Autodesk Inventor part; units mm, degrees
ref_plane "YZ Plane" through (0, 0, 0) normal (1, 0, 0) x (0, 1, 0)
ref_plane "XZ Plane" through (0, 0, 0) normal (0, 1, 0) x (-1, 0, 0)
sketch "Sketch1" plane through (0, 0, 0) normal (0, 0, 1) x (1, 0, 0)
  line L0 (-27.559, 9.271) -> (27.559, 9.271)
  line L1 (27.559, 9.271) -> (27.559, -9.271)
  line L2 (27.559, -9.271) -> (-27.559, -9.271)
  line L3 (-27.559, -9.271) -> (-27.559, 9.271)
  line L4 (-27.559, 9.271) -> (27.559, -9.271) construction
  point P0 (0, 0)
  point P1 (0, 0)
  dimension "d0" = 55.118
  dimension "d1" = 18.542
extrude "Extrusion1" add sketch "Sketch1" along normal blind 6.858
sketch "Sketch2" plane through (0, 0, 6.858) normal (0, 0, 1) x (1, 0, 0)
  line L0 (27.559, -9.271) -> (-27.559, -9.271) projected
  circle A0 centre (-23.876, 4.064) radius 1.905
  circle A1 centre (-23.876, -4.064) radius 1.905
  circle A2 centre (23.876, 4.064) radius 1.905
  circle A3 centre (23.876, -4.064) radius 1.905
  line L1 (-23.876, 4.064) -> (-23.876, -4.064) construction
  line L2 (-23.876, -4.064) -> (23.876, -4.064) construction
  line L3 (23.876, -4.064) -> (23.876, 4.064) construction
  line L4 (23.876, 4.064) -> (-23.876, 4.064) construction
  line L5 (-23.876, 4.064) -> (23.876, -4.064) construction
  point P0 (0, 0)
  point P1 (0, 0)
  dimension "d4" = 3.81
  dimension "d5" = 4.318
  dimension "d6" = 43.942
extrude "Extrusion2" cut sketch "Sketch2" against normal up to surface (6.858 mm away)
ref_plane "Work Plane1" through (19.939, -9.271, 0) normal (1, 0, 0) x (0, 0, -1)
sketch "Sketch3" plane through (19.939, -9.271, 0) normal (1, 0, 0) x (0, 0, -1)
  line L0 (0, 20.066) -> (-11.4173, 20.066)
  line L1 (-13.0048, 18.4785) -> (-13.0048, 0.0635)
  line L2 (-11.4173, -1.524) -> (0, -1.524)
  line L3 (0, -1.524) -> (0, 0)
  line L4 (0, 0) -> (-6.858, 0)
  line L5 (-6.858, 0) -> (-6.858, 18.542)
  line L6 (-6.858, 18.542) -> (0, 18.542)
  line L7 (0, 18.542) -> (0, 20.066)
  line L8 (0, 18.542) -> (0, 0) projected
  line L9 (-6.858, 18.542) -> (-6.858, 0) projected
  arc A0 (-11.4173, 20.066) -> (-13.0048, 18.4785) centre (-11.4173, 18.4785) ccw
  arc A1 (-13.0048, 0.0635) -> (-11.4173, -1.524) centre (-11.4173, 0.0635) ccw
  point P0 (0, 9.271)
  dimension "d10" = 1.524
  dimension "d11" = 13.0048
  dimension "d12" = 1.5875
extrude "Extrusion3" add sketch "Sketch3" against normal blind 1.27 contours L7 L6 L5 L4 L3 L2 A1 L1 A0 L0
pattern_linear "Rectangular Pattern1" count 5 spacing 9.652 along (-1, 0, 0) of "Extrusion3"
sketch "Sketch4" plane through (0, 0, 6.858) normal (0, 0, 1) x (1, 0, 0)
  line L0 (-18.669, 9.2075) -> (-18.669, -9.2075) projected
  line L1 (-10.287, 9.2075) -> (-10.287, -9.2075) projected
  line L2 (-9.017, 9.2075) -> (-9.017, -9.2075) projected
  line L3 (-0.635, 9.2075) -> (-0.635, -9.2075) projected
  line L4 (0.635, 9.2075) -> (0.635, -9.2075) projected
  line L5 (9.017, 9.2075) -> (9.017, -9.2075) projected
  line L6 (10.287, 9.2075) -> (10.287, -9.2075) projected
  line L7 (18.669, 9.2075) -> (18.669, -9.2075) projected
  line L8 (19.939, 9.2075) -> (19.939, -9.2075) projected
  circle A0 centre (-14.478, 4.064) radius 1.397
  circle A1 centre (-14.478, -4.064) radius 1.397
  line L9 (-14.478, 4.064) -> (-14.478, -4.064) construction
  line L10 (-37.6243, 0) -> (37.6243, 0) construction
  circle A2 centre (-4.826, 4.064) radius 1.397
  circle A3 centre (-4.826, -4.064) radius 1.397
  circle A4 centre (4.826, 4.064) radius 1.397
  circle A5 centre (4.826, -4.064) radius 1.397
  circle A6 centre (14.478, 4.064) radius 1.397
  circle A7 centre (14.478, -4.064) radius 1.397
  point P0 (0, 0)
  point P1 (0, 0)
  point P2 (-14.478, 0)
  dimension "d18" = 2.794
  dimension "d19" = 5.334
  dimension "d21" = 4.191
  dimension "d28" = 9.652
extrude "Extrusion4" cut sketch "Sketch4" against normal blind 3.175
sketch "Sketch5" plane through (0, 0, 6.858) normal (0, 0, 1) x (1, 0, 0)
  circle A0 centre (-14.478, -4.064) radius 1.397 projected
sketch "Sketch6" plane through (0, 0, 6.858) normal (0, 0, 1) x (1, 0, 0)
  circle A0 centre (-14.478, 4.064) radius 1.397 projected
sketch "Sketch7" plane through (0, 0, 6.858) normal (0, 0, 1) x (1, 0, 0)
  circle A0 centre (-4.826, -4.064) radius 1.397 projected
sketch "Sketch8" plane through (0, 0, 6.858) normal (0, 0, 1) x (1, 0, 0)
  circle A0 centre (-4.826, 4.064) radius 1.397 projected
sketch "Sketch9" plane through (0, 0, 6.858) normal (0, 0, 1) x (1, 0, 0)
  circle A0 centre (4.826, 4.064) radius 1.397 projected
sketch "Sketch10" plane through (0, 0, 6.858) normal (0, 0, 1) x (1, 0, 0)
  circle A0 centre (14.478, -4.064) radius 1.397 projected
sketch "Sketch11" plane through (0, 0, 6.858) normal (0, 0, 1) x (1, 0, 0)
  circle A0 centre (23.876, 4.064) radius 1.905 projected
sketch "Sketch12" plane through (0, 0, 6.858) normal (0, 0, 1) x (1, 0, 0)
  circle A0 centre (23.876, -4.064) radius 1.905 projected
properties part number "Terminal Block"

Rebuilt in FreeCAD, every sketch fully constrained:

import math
import FreeCAD as App
import Part
import Sketcher
from FreeCAD import Vector
Q = App.Units.Quantity

doc = App.newDocument("Part")
body = doc.addObject("PartDesign::Body", "Body")

# Sketch on XY plane
sketch1 = body.newObject("Sketcher::SketchObject", "Sketch")
sketch1.AttachmentSupport = (doc.getObject("XY_Plane"), [""])
sketch1.MapMode = "FlatFace"
sketch1.addGeometry([
    Part.LineSegment(Vector(28, 9, 0), Vector(-28, 9, 0)),
    Part.LineSegment(Vector(-28, 9, 0), Vector(-28, -9, 0)),
    Part.LineSegment(Vector(-28, -9, 0), Vector(28, -9, 0)),
    Part.LineSegment(Vector(28, -9, 0), Vector(28, 9, 0)),
], False)
sketch1.addConstraint([
    Sketcher.Constraint("Coincident", 0, 2, 1, 1),
    Sketcher.Constraint("Coincident", 1, 2, 2, 1),
    Sketcher.Constraint("Coincident", 2, 2, 3, 1),
    Sketcher.Constraint("Coincident", 3, 2, 0, 1),
    Sketcher.Constraint("Horizontal", 0),
    Sketcher.Constraint("Vertical", 1),
    Sketcher.Constraint("Horizontal", 2),
    Sketcher.Constraint("Vertical", 3),
    Sketcher.Constraint("Symmetric", 0, 2, 2, 2, -1, 1),
    Sketcher.Constraint("DistanceX", 0, 2, 0, 1, Q("2.17 in")),
    Sketcher.Constraint("DistanceY", 1, 2, 1, 1, Q("0.73 in")),
])
pad1 = body.newObject("PartDesign::Pad", "Pad")
pad1.Profile = sketch1
pad1.Length = Q("0.27 in")

# Sketch on XY plane
sketch2 = body.newObject("Sketcher::SketchObject", "Sketch001")
sketch2.AttachmentSupport = (doc.getObject("XY_Plane"), [""])
sketch2.MapMode = "FlatFace"
sketch2.AttachmentOffset = App.Placement(Vector(0, 0, 0.27 * 25.4), App.Rotation())
sketch2.addGeometry([
    Part.Circle(Vector(-23.9, 4.1, 0), Vector(0, 0, 1), 1.9),
    Part.Circle(Vector(-23.9, -4.1, 0), Vector(0, 0, 1), 1.9),
    Part.Circle(Vector(23.9, 4.1, 0), Vector(0, 0, 1), 1.9),
    Part.Circle(Vector(23.9, -4.1, 0), Vector(0, 0, 1), 1.9),
], False)
sketch2.addConstraint([
    Sketcher.Constraint("Equal", 0, 1),
    Sketcher.Constraint("Equal", 1, 2),
    Sketcher.Constraint("Equal", 2, 3),
    Sketcher.Constraint("Symmetric", 1, 3, 2, 3, -1, 1),
    Sketcher.Constraint("Symmetric", 0, 3, 3, 3, -1, 1),
    Sketcher.Constraint("Symmetric", 0, 3, 2, 3, -2),
    Sketcher.Constraint("Diameter", 0, Q("0.15 in")),
    Sketcher.Constraint("DistanceX", 0, 3, -1, 1, Q("0.94 in")),
    Sketcher.Constraint("DistanceY", -1, 1, 0, 3, Q("0.16 in")),
])
pocket1 = body.newObject("PartDesign::Pocket", "Pocket")
pocket1.Profile = sketch2
pocket1.Length = Q("0.27 in")

# Sketch on YZ plane
sketch3 = body.newObject("Sketcher::SketchObject", "Sketch002")
sketch3.AttachmentSupport = (doc.getObject("YZ_Plane"), [""])
sketch3.MapMode = "FlatFace"
sketch3.AttachmentOffset = App.Placement(Vector(0, 0, 0.785 * 25.4), App.Rotation())
sketch3.addGeometry([
    Part.LineSegment(Vector(9.3, 0, 0), Vector(10.8, 0, 0)),  # 0
    Part.LineSegment(Vector(10.8, 0, 0), Vector(10.8, 11.4, 0)),  # 1
    Part.ArcOfCircle(Part.Circle(Vector(9.2, 11.4, 0), Vector(0, 0, 1), 1.6), math.radians(0), math.radians(90)),  # 2
    Part.LineSegment(Vector(9.2, 13, 0), Vector(-9.2, 13, 0)),  # 3
    Part.ArcOfCircle(Part.Circle(Vector(-9.2, 11.4, 0), Vector(0, 0, 1), 1.6), math.radians(90), math.radians(180)),  # 4
    Part.LineSegment(Vector(-10.8, 11.4, 0), Vector(-10.8, 0, 0)),  # 5
    Part.LineSegment(Vector(-10.8, 0, 0), Vector(-9.3, 0, 0)),  # 6
    Part.LineSegment(Vector(-9.3, 0, 0), Vector(-9.3, 6.9, 0)),  # 7
    Part.LineSegment(Vector(-9.3, 6.9, 0), Vector(9.3, 6.9, 0)),  # 8
    Part.LineSegment(Vector(9.3, 6.9, 0), Vector(9.3, 0, 0)),  # 9
], False)
sketch3.addConstraint([
    Sketcher.Constraint("Coincident", 0, 2, 1, 1),
    Sketcher.Constraint("Tangent", 1, 2, 2, 1),
    Sketcher.Constraint("Tangent", 2, 2, 3, 1),
    Sketcher.Constraint("Tangent", 3, 2, 4, 1),
    Sketcher.Constraint("Tangent", 4, 2, 5, 1),
    Sketcher.Constraint("Coincident", 5, 2, 6, 1),
    Sketcher.Constraint("Coincident", 6, 2, 7, 1),
    Sketcher.Constraint("Coincident", 7, 2, 8, 1),
    Sketcher.Constraint("Coincident", 8, 2, 9, 1),
    Sketcher.Constraint("Coincident", 9, 2, 0, 1),
    Sketcher.Constraint("Horizontal", 0),
    Sketcher.Constraint("Vertical", 1),
    Sketcher.Constraint("Horizontal", 3),
    Sketcher.Constraint("Vertical", 5),
    Sketcher.Constraint("Horizontal", 6),
    Sketcher.Constraint("Vertical", 7),
    Sketcher.Constraint("Horizontal", 8),
    Sketcher.Constraint("Vertical", 9),
    Sketcher.Constraint("Equal", 2, 4),
    Sketcher.Constraint("Symmetric", 0, 2, 5, 2, -1, 1),
    Sketcher.Constraint("Symmetric", 6, 2, 9, 2, -2),
    Sketcher.Constraint("Radius", 2, Q("0.0625 in")),
    Sketcher.Constraint("DistanceX", 0, 1, 0, 2, Q("0.06 in")),
    Sketcher.Constraint("DistanceY", -1, 1, 2, 2, Q("0.512 in")),
    Sketcher.Constraint("DistanceX", 8, 1, 8, 2, Q("0.73 in")),
    Sketcher.Constraint("DistanceY", 7, 1, 7, 2, Q("0.27 in")),
])
pad2 = body.newObject("PartDesign::Pad", "Pad001")
pad2.Profile = sketch3
pad2.Length = Q("0.05 in")
pad2.Reversed = True
doc.recompute()

linearpattern = body.newObject("PartDesign::LinearPattern", "LinearPattern")
linearpattern.Originals = [pad2]
linearpattern.Direction = (doc.getObject("X_Axis"), [""])
linearpattern.Mode = "offset"
linearpattern.Offset = Q("0.38 in")
linearpattern.Occurrences = 5
linearpattern.Reversed = True
body.Tip = linearpattern

# Sketch on XY plane
sketch4 = body.newObject("Sketcher::SketchObject", "Sketch003")
sketch4.AttachmentSupport = (doc.getObject("XY_Plane"), [""])
sketch4.MapMode = "FlatFace"
sketch4.AttachmentOffset = App.Placement(Vector(0, 0, 0.27 * 25.4), App.Rotation())
sketch4.addGeometry([
    Part.Circle(Vector(-14.5, 4.1, 0), Vector(0, 0, 1), 1.4),  # 0
    Part.Circle(Vector(-14.5, -4.1, 0), Vector(0, 0, 1), 1.4),  # 1
    Part.Circle(Vector(-4.8, 4.1, 0), Vector(0, 0, 1), 1.4),  # 2
    Part.Circle(Vector(-4.8, -4.1, 0), Vector(0, 0, 1), 1.4),  # 3
    Part.Circle(Vector(4.8, 4.1, 0), Vector(0, 0, 1), 1.4),  # 4
    Part.Circle(Vector(4.8, -4.1, 0), Vector(0, 0, 1), 1.4),  # 5
    Part.Circle(Vector(14.5, 4.1, 0), Vector(0, 0, 1), 1.4),  # 6
    Part.Circle(Vector(14.5, -4.1, 0), Vector(0, 0, 1), 1.4),  # 7
], False)
sketch4.addConstraint([
    Sketcher.Constraint("Equal", 0, 1),
    Sketcher.Constraint("Equal", 1, 2),
    Sketcher.Constraint("Equal", 2, 3),
    Sketcher.Constraint("Equal", 3, 4),
    Sketcher.Constraint("Equal", 4, 5),
    Sketcher.Constraint("Equal", 5, 6),
    Sketcher.Constraint("Equal", 6, 7),
    Sketcher.Constraint("Symmetric", 3, 3, 4, 3, -1, 1),
    Sketcher.Constraint("Symmetric", 2, 3, 5, 3, -1, 1),
    Sketcher.Constraint("Symmetric", 1, 3, 6, 3, -1, 1),
    Sketcher.Constraint("Symmetric", 0, 3, 7, 3, -1, 1),
    Sketcher.Constraint("Symmetric", 2, 3, 4, 3, -2),
    Sketcher.Constraint("Symmetric", 0, 3, 6, 3, -2),
    Sketcher.Constraint("Horizontal", 0, 3, 2, 3),
    Sketcher.Constraint("Diameter", 0, Q("0.11 in")),
    Sketcher.Constraint("DistanceX", 0, 3, 2, 3, Q("0.38 in")),
    Sketcher.Constraint("DistanceX", 2, 3, 4, 3, Q("0.38 in")),
    Sketcher.Constraint("DistanceY", -1, 1, 0, 3, Q("0.16 in")),
])
pocket2 = body.newObject("PartDesign::Pocket", "Pocket001")
pocket2.Profile = sketch4
pocket2.Length = Q("0.125 in")

doc.recompute()
